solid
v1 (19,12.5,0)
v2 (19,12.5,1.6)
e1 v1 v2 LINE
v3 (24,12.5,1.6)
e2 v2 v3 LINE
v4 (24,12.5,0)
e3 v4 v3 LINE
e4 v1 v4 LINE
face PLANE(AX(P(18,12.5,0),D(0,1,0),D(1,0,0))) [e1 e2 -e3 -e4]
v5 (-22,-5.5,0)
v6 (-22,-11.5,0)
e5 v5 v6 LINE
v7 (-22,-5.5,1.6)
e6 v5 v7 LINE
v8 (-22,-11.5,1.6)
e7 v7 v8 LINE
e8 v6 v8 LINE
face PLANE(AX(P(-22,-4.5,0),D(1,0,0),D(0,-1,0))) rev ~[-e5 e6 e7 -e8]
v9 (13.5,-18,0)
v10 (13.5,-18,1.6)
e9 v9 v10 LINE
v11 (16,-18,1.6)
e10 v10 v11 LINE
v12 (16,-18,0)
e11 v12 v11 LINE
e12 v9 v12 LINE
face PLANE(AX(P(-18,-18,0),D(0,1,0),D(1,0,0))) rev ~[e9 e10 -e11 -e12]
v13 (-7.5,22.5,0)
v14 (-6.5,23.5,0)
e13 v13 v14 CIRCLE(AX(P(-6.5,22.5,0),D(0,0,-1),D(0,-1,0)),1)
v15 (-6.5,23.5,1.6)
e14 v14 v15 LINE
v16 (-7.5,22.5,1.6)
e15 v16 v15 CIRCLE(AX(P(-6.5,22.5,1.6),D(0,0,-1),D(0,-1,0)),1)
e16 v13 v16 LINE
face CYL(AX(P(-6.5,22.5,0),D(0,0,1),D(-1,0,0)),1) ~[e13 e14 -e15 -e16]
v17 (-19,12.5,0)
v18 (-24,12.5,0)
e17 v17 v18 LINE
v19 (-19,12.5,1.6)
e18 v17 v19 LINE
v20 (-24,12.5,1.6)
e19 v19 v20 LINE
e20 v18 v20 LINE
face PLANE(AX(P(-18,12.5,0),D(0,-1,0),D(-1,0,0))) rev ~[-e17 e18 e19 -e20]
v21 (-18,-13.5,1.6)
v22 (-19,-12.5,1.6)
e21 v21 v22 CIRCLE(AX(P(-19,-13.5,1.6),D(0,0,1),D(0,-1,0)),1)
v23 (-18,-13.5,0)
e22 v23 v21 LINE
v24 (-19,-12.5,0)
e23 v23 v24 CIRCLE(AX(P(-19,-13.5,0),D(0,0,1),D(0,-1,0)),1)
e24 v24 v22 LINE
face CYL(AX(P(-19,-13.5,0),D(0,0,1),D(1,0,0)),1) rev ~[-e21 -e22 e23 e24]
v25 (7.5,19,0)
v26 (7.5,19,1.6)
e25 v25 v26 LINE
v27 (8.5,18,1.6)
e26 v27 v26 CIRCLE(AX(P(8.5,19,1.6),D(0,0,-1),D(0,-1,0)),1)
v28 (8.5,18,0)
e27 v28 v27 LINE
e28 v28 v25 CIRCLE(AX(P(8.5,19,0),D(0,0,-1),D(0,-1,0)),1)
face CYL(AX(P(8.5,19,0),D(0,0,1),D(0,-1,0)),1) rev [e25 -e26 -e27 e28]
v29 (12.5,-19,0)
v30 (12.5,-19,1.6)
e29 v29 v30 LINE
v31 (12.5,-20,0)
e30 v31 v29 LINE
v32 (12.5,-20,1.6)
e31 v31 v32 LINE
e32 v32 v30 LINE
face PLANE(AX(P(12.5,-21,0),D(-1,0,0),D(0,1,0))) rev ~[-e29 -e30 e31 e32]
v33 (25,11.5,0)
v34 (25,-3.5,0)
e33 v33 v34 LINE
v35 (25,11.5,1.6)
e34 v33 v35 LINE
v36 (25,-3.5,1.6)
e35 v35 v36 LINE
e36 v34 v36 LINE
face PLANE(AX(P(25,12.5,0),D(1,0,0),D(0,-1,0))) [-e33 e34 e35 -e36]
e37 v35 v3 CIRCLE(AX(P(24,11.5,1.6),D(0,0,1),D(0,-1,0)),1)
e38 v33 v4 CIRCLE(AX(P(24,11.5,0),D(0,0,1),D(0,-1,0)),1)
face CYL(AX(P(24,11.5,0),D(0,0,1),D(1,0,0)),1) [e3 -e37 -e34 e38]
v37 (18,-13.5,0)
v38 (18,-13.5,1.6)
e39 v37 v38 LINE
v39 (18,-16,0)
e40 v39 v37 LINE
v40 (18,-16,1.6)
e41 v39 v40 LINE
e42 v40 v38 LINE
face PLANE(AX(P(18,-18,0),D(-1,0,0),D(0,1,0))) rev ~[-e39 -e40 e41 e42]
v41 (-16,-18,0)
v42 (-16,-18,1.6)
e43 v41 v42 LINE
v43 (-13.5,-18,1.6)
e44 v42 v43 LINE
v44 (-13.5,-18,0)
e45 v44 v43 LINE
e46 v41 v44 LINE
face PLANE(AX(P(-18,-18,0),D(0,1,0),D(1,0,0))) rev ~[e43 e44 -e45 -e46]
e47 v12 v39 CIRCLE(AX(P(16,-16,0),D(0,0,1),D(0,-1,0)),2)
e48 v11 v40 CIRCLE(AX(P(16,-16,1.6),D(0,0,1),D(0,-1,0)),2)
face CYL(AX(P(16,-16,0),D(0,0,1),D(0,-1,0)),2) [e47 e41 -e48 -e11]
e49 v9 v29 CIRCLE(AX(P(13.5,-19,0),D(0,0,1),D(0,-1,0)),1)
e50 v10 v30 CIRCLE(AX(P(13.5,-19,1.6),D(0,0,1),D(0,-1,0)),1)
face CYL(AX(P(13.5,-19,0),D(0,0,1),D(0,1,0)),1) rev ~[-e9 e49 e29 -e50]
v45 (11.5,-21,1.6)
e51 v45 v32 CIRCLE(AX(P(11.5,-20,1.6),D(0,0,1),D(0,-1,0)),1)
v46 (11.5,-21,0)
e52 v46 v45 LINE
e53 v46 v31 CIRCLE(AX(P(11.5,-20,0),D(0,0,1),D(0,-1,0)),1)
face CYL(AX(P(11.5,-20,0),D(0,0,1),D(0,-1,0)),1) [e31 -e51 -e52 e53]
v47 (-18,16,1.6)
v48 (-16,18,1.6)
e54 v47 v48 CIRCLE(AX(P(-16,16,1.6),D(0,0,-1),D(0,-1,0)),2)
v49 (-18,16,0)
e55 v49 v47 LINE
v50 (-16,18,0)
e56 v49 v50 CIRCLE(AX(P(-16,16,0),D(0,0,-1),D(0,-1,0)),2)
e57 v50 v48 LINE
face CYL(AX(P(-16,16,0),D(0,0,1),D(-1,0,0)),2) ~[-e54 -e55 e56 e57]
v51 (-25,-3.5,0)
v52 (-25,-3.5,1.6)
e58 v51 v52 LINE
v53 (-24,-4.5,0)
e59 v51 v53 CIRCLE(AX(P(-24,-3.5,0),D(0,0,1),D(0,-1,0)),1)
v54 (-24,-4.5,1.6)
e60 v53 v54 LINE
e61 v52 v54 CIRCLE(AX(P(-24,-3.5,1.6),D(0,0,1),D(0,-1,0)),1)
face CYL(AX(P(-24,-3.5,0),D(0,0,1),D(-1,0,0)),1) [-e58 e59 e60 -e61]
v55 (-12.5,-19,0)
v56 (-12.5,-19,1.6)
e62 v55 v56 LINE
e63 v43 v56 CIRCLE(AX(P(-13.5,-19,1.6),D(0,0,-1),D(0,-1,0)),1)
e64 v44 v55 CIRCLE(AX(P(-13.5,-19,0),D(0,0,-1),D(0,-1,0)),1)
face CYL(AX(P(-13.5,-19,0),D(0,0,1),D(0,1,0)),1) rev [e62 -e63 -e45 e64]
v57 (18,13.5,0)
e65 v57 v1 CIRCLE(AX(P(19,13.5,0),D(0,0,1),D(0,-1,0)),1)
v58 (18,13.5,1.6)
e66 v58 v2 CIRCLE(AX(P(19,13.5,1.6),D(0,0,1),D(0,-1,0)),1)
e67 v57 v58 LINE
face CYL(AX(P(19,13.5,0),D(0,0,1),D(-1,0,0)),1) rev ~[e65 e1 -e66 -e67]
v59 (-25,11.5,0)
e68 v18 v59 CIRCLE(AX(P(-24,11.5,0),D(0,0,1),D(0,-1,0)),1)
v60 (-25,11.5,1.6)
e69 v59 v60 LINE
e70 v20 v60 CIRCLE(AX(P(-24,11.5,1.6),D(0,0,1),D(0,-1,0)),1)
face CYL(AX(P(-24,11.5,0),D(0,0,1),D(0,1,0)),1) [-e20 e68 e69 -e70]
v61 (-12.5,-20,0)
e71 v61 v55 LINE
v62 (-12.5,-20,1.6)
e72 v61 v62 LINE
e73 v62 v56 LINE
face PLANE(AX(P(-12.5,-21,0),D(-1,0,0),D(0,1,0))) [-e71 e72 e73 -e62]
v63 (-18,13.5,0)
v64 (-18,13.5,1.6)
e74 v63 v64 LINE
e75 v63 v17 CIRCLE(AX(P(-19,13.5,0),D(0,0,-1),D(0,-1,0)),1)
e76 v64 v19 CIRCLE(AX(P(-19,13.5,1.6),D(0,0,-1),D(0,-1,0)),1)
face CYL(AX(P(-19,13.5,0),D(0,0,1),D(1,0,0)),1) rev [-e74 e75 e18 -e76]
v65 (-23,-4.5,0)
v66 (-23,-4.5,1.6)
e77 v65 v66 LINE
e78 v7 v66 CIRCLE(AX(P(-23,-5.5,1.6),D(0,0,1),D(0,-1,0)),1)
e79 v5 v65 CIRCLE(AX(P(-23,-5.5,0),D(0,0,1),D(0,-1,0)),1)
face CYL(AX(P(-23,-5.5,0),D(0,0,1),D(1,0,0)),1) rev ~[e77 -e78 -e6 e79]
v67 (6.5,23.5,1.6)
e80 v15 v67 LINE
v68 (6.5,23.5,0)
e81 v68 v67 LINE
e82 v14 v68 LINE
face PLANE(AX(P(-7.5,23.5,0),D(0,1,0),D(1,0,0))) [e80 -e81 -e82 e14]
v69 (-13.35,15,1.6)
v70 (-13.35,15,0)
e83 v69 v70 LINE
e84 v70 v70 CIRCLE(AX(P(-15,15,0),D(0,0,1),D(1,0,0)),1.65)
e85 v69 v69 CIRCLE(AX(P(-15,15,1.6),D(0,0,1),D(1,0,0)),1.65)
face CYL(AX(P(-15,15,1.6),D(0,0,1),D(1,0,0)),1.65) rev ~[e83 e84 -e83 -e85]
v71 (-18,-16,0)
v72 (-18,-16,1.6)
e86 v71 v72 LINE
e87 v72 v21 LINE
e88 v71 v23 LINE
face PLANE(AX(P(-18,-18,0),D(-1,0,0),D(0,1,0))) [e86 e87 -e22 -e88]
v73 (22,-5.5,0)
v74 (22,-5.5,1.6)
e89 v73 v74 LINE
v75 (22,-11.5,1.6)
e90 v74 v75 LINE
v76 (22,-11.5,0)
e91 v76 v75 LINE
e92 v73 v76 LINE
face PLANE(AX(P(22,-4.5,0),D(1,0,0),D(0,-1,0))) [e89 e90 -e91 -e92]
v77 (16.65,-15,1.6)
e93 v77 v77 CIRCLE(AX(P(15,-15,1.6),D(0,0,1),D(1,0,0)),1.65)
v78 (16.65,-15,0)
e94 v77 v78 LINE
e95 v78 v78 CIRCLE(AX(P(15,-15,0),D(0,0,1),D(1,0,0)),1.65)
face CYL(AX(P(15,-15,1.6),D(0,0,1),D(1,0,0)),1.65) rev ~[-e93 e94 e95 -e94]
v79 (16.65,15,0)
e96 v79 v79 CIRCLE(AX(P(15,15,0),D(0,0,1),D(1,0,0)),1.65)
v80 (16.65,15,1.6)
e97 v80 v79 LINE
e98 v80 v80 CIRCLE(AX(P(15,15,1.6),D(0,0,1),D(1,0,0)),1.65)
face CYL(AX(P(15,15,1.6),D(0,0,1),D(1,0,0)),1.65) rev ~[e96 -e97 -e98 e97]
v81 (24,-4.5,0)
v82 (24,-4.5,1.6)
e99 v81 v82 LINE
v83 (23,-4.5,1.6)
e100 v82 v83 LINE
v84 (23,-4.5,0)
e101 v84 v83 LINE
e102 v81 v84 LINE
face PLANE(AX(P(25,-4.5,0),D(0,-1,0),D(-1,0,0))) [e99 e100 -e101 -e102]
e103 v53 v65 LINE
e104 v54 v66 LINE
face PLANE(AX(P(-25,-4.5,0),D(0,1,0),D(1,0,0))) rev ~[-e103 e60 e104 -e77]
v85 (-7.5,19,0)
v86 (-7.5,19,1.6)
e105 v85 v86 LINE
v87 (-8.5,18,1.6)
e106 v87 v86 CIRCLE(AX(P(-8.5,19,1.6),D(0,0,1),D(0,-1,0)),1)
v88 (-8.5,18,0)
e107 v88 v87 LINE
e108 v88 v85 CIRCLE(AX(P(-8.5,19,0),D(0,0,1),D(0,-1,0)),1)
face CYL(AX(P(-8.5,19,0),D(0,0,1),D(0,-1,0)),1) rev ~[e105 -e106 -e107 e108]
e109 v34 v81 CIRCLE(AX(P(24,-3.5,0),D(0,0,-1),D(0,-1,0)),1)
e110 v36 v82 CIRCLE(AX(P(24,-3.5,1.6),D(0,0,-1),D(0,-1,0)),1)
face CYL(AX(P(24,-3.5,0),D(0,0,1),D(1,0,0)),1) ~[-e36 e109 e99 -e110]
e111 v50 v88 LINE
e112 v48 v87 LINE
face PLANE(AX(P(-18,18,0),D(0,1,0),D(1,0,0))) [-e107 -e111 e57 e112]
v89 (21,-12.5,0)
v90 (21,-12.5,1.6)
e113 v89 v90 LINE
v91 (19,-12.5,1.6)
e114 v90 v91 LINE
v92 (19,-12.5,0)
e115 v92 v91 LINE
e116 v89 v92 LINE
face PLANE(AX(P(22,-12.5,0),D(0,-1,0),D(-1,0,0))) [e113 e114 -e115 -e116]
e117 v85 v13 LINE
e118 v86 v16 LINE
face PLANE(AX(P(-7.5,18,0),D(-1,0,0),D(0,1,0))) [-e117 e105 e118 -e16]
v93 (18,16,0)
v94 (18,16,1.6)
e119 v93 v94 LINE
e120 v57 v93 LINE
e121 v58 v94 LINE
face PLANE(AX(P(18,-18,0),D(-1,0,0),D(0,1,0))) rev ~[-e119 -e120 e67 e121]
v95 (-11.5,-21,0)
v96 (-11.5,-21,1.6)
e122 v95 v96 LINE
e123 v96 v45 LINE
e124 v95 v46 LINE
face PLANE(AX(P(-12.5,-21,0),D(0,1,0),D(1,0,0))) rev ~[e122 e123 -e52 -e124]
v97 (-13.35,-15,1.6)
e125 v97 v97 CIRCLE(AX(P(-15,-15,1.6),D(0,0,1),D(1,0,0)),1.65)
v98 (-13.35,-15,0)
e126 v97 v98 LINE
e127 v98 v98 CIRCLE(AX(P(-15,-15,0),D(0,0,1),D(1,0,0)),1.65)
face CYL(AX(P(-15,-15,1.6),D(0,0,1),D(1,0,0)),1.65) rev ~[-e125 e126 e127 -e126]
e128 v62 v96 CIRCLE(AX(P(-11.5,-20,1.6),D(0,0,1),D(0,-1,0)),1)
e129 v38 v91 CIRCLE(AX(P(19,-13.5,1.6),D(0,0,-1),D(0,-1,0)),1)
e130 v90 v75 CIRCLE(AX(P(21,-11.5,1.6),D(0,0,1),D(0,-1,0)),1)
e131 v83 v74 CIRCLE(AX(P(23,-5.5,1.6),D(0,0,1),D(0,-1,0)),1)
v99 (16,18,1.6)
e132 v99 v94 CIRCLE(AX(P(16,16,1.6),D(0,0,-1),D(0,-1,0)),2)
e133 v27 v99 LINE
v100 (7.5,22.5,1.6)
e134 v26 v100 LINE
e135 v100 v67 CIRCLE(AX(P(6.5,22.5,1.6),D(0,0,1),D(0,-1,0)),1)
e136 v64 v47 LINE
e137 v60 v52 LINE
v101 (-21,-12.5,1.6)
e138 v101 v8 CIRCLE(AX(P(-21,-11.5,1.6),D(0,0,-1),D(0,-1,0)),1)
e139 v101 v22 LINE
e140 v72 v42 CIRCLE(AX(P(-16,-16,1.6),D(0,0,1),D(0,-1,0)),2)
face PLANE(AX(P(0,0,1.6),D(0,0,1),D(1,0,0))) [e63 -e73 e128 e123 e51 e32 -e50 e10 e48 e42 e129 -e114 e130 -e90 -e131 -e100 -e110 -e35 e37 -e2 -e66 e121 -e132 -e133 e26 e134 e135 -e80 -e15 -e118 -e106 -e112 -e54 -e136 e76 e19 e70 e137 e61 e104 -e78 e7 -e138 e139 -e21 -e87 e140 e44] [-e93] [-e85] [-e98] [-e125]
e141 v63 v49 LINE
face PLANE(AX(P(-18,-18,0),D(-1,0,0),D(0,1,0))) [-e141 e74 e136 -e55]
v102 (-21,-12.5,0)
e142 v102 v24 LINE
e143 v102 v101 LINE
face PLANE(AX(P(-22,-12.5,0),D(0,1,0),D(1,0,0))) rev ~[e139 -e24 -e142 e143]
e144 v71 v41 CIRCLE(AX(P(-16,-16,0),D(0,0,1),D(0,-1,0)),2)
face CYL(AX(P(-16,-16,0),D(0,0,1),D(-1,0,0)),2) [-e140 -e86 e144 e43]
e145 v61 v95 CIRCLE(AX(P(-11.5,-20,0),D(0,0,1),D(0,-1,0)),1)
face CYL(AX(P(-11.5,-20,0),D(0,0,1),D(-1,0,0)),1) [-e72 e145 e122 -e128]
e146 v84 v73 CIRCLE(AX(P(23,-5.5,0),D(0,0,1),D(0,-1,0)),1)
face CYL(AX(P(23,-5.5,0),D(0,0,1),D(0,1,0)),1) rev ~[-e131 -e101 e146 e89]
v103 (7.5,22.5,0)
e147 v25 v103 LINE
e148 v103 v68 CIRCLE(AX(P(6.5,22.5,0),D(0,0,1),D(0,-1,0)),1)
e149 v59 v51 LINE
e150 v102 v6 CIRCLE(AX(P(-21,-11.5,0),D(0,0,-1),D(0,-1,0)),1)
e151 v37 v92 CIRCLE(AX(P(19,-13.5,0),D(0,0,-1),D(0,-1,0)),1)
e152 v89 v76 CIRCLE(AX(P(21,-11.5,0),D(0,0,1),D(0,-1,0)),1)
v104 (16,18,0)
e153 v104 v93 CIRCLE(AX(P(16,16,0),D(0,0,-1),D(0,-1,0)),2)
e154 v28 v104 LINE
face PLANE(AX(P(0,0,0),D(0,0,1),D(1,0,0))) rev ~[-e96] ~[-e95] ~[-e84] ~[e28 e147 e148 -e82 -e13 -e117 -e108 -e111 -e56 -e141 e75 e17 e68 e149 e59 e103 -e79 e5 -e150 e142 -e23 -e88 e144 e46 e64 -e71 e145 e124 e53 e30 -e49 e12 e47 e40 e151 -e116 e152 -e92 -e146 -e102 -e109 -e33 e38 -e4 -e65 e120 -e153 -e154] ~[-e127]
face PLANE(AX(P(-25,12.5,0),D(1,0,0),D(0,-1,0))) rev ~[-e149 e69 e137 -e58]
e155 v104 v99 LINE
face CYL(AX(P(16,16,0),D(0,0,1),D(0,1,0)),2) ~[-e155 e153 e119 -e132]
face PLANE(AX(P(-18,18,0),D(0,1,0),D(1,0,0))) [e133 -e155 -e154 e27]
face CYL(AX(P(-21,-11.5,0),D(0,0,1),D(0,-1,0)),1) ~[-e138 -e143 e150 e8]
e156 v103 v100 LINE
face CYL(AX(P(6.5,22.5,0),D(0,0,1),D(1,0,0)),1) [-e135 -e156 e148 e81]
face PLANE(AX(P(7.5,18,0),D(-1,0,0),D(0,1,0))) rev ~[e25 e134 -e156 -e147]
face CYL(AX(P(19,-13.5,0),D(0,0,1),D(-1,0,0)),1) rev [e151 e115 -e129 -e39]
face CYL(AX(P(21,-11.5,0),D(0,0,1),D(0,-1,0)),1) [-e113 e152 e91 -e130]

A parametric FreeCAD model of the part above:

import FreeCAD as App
import Part
import Sketcher


def edges_at(feature, points):
    """Names of the edges that pass closest to the given points."""
    edges = feature.Shape.Edges
    near = lambda p: min(range(len(edges)), key=lambda i: edges[i].distToShape(Part.Vertex(*p))[0])
    return sorted({f"Edge{near(p) + 1}" for p in points})


def add_polygon(sketch, points):
    """Adds a closed chain of lines whose ends are joined by coincident constraints."""
    first, n = sketch.GeometryCount, len(points)
    for a, b in zip(points, points[1:] + points[:1]):
        sketch.addGeometry(Part.LineSegment(App.Vector(*a, 0), App.Vector(*b, 0)), False)
    for i in range(n):
        sketch.addConstraint(Sketcher.Constraint("Coincident", first + i, 2, first + (i + 1) % n, 1))

doc = App.newDocument("Part")
params = doc.addObject("Spreadsheet::Sheet", "Params")
for row, (alias, value) in enumerate([
    ("sketch1_width", "36 mm"),
    ("pad1_length", "1.6 mm"),
    ("sketch2_diameter", "3.3 mm"),
    ("fillet_radius", "2 mm"),
    ("sketch3_width", "7 mm"),
    ("sketch3_width2", "3 mm"),
    ("sketch3_width3", "15 mm"),
    ("sketch3_width4", "25 mm"),
    ("sketch3_height", "17 mm"),
    ("pad2_length", "1.6 mm"),
    ("fillet2_radius", "1 mm"),
], start=1):
    params.set(f"A{row}", alias)
    params.set(f"B{row}", "=" + value)
    params.setAlias(f"B{row}", alias)

body = doc.addObject("PartDesign::Body", "Body")

sketch1 = body.newObject("Sketcher::SketchObject", "Sketch")
sketch1.AttachmentSupport = (doc.getObject("XY_Plane"), [""])
sketch1.MapMode = "FlatFace"
add_polygon(sketch1, [(-18, 18), (-18, -18), (18, -18), (18, 18)])
sketch1.addConstraint([
    Sketcher.Constraint("Vertical", 0),
    Sketcher.Constraint("Horizontal", 1),
    Sketcher.Constraint("Vertical", 2),
    Sketcher.Constraint("Horizontal", 3),
    Sketcher.Constraint("Symmetric", 0, 2, 2, 2, -1, 1),
    Sketcher.Constraint("Equal", 3, 0),
    Sketcher.Constraint("DistanceX", 1, 1, 1, 2, 36.0),
])
sketch1.setExpression("Constraints[10]", "Params.sketch1_width")
pad1 = body.newObject("PartDesign::Pad", "Pad")
pad1.Profile = sketch1
pad1.setExpression("Length", "Params.pad1_length")

sketch2 = body.newObject("Sketcher::SketchObject", "Sketch001")
sketch2.AttachmentSupport = (doc.getObject("XY_Plane"), [""])
sketch2.MapMode = "FlatFace"
sketch2.AttachmentOffset = App.Placement(App.Vector(0, 0, 1.6), App.Rotation())
sketch2.addGeometry([
    Part.Circle(App.Vector(-15, 15, 0), App.Vector(0, 0, 1), 1.6),
    Part.Circle(App.Vector(15, 15, 0), App.Vector(0, 0, 1), 1.6),
    Part.Circle(App.Vector(15, -15, 0), App.Vector(0, 0, 1), 1.6),
    Part.Circle(App.Vector(-15, -15, 0), App.Vector(0, 0, 1), 1.6),
], False)
sketch2.addConstraint([
    Sketcher.Constraint("Equal", 0, 1),
    Sketcher.Constraint("Equal", 1, 2),
    Sketcher.Constraint("Equal", 2, 3),
    Sketcher.Constraint("Symmetric", 0, 3, 2, 3, -1, 1),
    Sketcher.Constraint("Symmetric", 1, 3, 3, 3, -1, 1),
    Sketcher.Constraint("Symmetric", 0, 3, 1, 3, -2),
    Sketcher.Constraint("Diameter", 0, 3.3),
    Sketcher.Constraint("DistanceX", 0, 3, -1, 1, 15.0),
    Sketcher.Constraint("DistanceY", -1, 1, 0, 3, 15.0),
])
sketch2.setExpression("Constraints[6]", "Params.sketch2_diameter")
pocket1 = body.newObject("PartDesign::Pocket", "Pocket")
pocket1.Profile = sketch2
pocket1.Type = "ThroughAll"
doc.recompute()

fillet = body.newObject("PartDesign::Fillet", "Fillet")
fillet.Base = (pocket1, edges_at(pocket1, [
    (-18, 18, 0.8),
    (18, 18, 0.8),
    (18, -18, 0.8),
    (-18, -18, 0.8),
]))
fillet.setExpression("Radius", "Params.fillet_radius")

sketch3 = body.newObject("Sketcher::SketchObject", "Sketch002")
sketch3.AttachmentSupport = (doc.getObject("XY_Plane"), [""])
sketch3.MapMode = "FlatFace"
add_polygon(sketch3, [(-18, 12.5), (-25, 12.5), (-25, -4.5), (-22, -4.5), (-22, -12.5), (-18, -12.5)])
add_polygon(sketch3, [(25, -4.5), (25, 12.5), (18, 12.5), (18, -12.5), (22, -12.5), (22, -4.5)])
add_polygon(sketch3, [(-7.5, 23.5), (-7.5, 18), (7.5, 18), (7.5, 23.5)])
add_polygon(sketch3, [(-12.5, -18), (-12.5, -21), (12.5, -21), (12.5, -18)])
sketch3.addConstraint([
    Sketcher.Constraint("Horizontal", 0),
    Sketcher.Constraint("Vertical", 1),
    Sketcher.Constraint("Horizontal", 2),
    Sketcher.Constraint("Vertical", 3),
    Sketcher.Constraint("Horizontal", 4),
    Sketcher.Constraint("Vertical", 5),
    Sketcher.Constraint("Vertical", 6),
    Sketcher.Constraint("Horizontal", 7),
    Sketcher.Constraint("Vertical", 8),
    Sketcher.Constraint("Horizontal", 9),
    Sketcher.Constraint("Vertical", 10),
    Sketcher.Constraint("Horizontal", 11),
    Sketcher.Constraint("Vertical", 12),
    Sketcher.Constraint("Horizontal", 13),
    Sketcher.Constraint("Vertical", 14),
    Sketcher.Constraint("Horizontal", 15),
    Sketcher.Constraint("Vertical", 16),
    Sketcher.Constraint("Horizontal", 17),
    Sketcher.Constraint("Vertical", 18),
    Sketcher.Constraint("Horizontal", 19),
    Sketcher.Constraint("Symmetric", 4, 2, 7, 2, -1, 1),
    Sketcher.Constraint("Symmetric", 0, 2, 6, 2, -2),
    Sketcher.Constraint("Symmetric", 3, 2, 9, 2, -2),
    Sketcher.Constraint("Horizontal", 2, 2, 10, 2),
    Sketcher.Constraint("Equal", 19, 5),
    Sketcher.Constraint("Equal", 11, 16),
    Sketcher.Constraint("DistanceX", 0, 2, 0, 1, 7.0),
    Sketcher.Constraint("DistanceX", 2, 1, 2, 2, 3.0),
    Sketcher.Constraint("DistanceX", 13, 1, 13, 2, 15.0),
    Sketcher.Constraint("DistanceX", 17, 1, 17, 2, 25.0),
    Sketcher.Constraint("DistanceY", 1, 2, 1, 1, 17.0),
    Sketcher.Constraint("DistanceY", 12, 2, 12, 1, 5.5),
    Sketcher.Constraint("DistanceX", 0, 2, -1, 1, 25.0),
    Sketcher.Constraint("DistanceY", -1, 1, 12, 2, 18.0),
    Sketcher.Constraint("DistanceY", 16, 2, -1, 1, 21.0),
    Sketcher.Constraint("DistanceX", 12, 2, -1, 1, 7.5),
    Sketcher.Constraint("DistanceX", 16, 2, -1, 1, 12.5),
])
sketch3.setExpression("Constraints[46]", "Params.sketch3_width")
sketch3.setExpression("Constraints[47]", "Params.sketch3_width2")
sketch3.setExpression("Constraints[48]", "Params.sketch3_width3")
sketch3.setExpression("Constraints[49]", "Params.sketch3_width4")
sketch3.setExpression("Constraints[50]", "Params.sketch3_height")
pad2 = body.newObject("PartDesign::Pad", "Pad001")
pad2.Profile = sketch3
pad2.setExpression("Length", "Params.pad2_length")
doc.recompute()

fillet2 = body.newObject("PartDesign::Fillet", "Fillet001")
fillet2.Base = (pad2, edges_at(pad2, [
    (12.5, -18, 0.8),
    (12.5, -21, 0.8),
    (-12.5, -21, 0.8),
    (-12.5, -18, 0.8),
    (-18, -12.5, 0.8),
    (-22, -12.5, 0.8),
    (-22, -4.5, 0.8),
    (-25, -4.5, 0.8),
    (-25, 12.5, 0.8),
    (-18, 12.5, 0.8),
    (25, -4.5, 0.8),
    (22, -4.5, 0.8),
    (22, -12.5, 0.8),
    (18, -12.5, 0.8),
    (18, 12.5, 0.8),
    (25, 12.5, 0.8),
    (7.5, 23.5, 0.8),
    (7.5, 18, 0.8),
    (-7.5, 18, 0.8),
    (-7.5, 23.5, 0.8),
]))
fillet2.setExpression("Radius", "Params.fillet2_radius")

doc.recompute()
